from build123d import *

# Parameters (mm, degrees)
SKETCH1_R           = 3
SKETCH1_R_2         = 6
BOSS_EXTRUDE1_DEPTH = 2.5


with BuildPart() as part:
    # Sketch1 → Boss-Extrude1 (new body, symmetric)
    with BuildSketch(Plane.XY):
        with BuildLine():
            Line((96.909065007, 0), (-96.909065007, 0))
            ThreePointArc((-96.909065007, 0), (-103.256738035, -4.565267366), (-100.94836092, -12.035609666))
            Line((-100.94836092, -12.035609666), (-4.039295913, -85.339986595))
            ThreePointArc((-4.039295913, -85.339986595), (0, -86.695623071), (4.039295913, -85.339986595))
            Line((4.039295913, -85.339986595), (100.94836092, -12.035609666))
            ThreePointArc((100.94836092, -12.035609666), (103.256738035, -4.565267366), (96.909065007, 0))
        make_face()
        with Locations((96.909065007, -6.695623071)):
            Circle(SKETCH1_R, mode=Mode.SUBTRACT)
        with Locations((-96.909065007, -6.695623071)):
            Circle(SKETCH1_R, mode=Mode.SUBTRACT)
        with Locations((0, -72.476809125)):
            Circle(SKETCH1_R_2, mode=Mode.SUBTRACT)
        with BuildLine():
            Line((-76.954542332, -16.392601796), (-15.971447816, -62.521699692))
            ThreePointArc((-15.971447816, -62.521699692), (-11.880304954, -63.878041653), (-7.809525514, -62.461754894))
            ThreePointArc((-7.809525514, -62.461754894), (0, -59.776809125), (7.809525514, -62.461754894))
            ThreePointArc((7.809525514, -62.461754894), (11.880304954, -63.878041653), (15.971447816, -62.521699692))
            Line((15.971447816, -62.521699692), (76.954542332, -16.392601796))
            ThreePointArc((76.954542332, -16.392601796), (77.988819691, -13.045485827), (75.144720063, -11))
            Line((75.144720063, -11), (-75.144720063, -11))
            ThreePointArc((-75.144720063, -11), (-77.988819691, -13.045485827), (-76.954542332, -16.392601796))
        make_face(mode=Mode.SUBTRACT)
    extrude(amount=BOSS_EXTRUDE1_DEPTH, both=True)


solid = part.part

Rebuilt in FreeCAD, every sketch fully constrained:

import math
import FreeCAD as App
import Part
import Sketcher
Q = App.Units.Quantity

doc = App.newDocument("Part")
body = doc.addObject("PartDesign::Body", "Body")

# Sketch on XY plane
sketch1 = body.newObject("Sketcher::SketchObject", "Sketch")
sketch1.AttachmentSupport = (doc.getObject("XY_Plane"), [""])
sketch1.MapMode = "FlatFace"
sketch1.addGeometry([
    Part.LineSegment(App.Vector(96.9, 0, 0), App.Vector(-96.9, 0, 0)),  # 0
    Part.ArcOfCircle(Part.Circle(App.Vector(-96.9, -6.7, 0), App.Vector(0, 0, 1), 6.7), math.radians(90), math.radians(233)),  # 1
    Part.LineSegment(App.Vector(-100.9, -12, 0), App.Vector(-4, -85.3, 0)),  # 2
    Part.ArcOfCircle(Part.Circle(App.Vector(0, -80, 0), App.Vector(0, 0, 1), 6.7), math.radians(-127), math.radians(-53)),  # 3
    Part.LineSegment(App.Vector(4, -85.3, 0), App.Vector(100.9, -12, 0)),  # 4
    Part.ArcOfCircle(Part.Circle(App.Vector(96.9, -6.7, 0), App.Vector(0, 0, 1), 6.7), math.radians(-53), math.radians(90)),  # 5
    Part.Circle(App.Vector(0, -72.5, 0), App.Vector(0, 0, 1), 6),  # 6
    Part.Circle(App.Vector(-96.9, -6.7, 0), App.Vector(0, 0, 1), 3),  # 7
    Part.LineSegment(App.Vector(-16, -62.5, 0), App.Vector(-77, -16.4, 0)),  # 8
    Part.ArcOfCircle(Part.Circle(App.Vector(-75.1, -14, 0), App.Vector(0, 0, 1), 3), math.radians(90), math.radians(233)),  # 9
    Part.LineSegment(App.Vector(-75.1, -11, 0), App.Vector(75.1, -11, 0)),  # 10
    Part.ArcOfCircle(Part.Circle(App.Vector(75.1, -14, 0), App.Vector(0, 0, 1), 3), math.radians(-53), math.radians(90)),  # 11
    Part.LineSegment(App.Vector(77, -16.4, 0), App.Vector(16, -62.5, 0)),  # 12
    Part.ArcOfCircle(Part.Circle(App.Vector(11.9, -57.2, 0), App.Vector(0, 0, 1), 6.7), math.radians(-128), math.radians(-53)),  # 13
    Part.ArcOfCircle(Part.Circle(App.Vector(0, -72.5, 0), App.Vector(0, 0, 1), 12.7), math.radians(52), math.radians(128)),  # 14
    Part.ArcOfCircle(Part.Circle(App.Vector(-11.9, -57.2, 0), App.Vector(0, 0, 1), 6.7), math.radians(-127), math.radians(-52)),  # 15
    Part.Circle(App.Vector(96.9, -6.7, 0), App.Vector(0, 0, 1), 3),  # 16
], False)
sketch1.addConstraint([
    Sketcher.Constraint("Tangent", 0, 2, 1, 1),
    Sketcher.Constraint("Tangent", 1, 2, 2, 1),
    Sketcher.Constraint("Tangent", 2, 2, 3, 1),
    Sketcher.Constraint("Tangent", 3, 2, 4, 1),
    Sketcher.Constraint("Tangent", 4, 2, 5, 1),
    Sketcher.Constraint("Tangent", 5, 2, 0, 1),
    Sketcher.Constraint("Tangent", 8, 2, 9, 2),
    Sketcher.Constraint("Tangent", 9, 1, 10, 1),
    Sketcher.Constraint("Tangent", 10, 2, 11, 2),
    Sketcher.Constraint("Tangent", 11, 1, 12, 1),
    Sketcher.Constraint("Tangent", 12, 2, 13, 2),
    Sketcher.Constraint("Tangent", 13, 1, 14, 1),
    Sketcher.Constraint("Tangent", 14, 2, 15, 2),
    Sketcher.Constraint("Tangent", 15, 1, 8, 1),
    Sketcher.Constraint("Horizontal", 0),
    Sketcher.Constraint("Horizontal", 10),
    Sketcher.Constraint("Coincident", 7, 3, 1, 3),
    Sketcher.Constraint("Coincident", 14, 3, 6, 3),
    Sketcher.Constraint("Coincident", 16, 3, 5, 3),
    Sketcher.Constraint("Equal", 1, 3),
    Sketcher.Constraint("Equal", 3, 5),
    Sketcher.Constraint("Equal", 7, 9),
    Sketcher.Constraint("Equal", 9, 11),
    Sketcher.Constraint("Equal", 13, 15),
    Sketcher.Constraint("Equal", 11, 16),
    Sketcher.Constraint("Symmetric", 0, 2, 5, 2, -1, 1),
    Sketcher.Constraint("Symmetric", 13, 3, 15, 3, -2),
    Sketcher.Constraint("PointOnObject", 3, 3, -2),
    Sketcher.Constraint("Parallel", 2, 8),
    Sketcher.Constraint("Parallel", 4, 12),
    Sketcher.Constraint("Diameter", 6, Q("12 mm")),
    Sketcher.Constraint("Diameter", 7, Q("6 mm")),
    Sketcher.Constraint("Radius", 13, Q("6.7 mm")),
    Sketcher.Constraint("Radius", 14, Q("12.7 mm")),
    Sketcher.Constraint("DistanceY", 3, 3, -1, 1, Q("80 mm")),
    Sketcher.Constraint("DistanceY", 9, 3, -1, 1, Q("14 mm")),
    Sketcher.Constraint("Radius", 1, Q("6.695623 mm")),
    Sketcher.Constraint("Distance", 2, Q("121.510899 mm")),
    Sketcher.Constraint("DistanceX", 10, 1, 10, 2, Q("150.28944 mm")),
    Sketcher.Constraint("DistanceY", 12, 2, -1, 1, Q("62.5217 mm")),
])
pad1 = body.newObject("PartDesign::Pad", "Pad")
pad1.Profile = sketch1
pad1.Length = 5
pad1.Midplane = True

doc.recompute()
